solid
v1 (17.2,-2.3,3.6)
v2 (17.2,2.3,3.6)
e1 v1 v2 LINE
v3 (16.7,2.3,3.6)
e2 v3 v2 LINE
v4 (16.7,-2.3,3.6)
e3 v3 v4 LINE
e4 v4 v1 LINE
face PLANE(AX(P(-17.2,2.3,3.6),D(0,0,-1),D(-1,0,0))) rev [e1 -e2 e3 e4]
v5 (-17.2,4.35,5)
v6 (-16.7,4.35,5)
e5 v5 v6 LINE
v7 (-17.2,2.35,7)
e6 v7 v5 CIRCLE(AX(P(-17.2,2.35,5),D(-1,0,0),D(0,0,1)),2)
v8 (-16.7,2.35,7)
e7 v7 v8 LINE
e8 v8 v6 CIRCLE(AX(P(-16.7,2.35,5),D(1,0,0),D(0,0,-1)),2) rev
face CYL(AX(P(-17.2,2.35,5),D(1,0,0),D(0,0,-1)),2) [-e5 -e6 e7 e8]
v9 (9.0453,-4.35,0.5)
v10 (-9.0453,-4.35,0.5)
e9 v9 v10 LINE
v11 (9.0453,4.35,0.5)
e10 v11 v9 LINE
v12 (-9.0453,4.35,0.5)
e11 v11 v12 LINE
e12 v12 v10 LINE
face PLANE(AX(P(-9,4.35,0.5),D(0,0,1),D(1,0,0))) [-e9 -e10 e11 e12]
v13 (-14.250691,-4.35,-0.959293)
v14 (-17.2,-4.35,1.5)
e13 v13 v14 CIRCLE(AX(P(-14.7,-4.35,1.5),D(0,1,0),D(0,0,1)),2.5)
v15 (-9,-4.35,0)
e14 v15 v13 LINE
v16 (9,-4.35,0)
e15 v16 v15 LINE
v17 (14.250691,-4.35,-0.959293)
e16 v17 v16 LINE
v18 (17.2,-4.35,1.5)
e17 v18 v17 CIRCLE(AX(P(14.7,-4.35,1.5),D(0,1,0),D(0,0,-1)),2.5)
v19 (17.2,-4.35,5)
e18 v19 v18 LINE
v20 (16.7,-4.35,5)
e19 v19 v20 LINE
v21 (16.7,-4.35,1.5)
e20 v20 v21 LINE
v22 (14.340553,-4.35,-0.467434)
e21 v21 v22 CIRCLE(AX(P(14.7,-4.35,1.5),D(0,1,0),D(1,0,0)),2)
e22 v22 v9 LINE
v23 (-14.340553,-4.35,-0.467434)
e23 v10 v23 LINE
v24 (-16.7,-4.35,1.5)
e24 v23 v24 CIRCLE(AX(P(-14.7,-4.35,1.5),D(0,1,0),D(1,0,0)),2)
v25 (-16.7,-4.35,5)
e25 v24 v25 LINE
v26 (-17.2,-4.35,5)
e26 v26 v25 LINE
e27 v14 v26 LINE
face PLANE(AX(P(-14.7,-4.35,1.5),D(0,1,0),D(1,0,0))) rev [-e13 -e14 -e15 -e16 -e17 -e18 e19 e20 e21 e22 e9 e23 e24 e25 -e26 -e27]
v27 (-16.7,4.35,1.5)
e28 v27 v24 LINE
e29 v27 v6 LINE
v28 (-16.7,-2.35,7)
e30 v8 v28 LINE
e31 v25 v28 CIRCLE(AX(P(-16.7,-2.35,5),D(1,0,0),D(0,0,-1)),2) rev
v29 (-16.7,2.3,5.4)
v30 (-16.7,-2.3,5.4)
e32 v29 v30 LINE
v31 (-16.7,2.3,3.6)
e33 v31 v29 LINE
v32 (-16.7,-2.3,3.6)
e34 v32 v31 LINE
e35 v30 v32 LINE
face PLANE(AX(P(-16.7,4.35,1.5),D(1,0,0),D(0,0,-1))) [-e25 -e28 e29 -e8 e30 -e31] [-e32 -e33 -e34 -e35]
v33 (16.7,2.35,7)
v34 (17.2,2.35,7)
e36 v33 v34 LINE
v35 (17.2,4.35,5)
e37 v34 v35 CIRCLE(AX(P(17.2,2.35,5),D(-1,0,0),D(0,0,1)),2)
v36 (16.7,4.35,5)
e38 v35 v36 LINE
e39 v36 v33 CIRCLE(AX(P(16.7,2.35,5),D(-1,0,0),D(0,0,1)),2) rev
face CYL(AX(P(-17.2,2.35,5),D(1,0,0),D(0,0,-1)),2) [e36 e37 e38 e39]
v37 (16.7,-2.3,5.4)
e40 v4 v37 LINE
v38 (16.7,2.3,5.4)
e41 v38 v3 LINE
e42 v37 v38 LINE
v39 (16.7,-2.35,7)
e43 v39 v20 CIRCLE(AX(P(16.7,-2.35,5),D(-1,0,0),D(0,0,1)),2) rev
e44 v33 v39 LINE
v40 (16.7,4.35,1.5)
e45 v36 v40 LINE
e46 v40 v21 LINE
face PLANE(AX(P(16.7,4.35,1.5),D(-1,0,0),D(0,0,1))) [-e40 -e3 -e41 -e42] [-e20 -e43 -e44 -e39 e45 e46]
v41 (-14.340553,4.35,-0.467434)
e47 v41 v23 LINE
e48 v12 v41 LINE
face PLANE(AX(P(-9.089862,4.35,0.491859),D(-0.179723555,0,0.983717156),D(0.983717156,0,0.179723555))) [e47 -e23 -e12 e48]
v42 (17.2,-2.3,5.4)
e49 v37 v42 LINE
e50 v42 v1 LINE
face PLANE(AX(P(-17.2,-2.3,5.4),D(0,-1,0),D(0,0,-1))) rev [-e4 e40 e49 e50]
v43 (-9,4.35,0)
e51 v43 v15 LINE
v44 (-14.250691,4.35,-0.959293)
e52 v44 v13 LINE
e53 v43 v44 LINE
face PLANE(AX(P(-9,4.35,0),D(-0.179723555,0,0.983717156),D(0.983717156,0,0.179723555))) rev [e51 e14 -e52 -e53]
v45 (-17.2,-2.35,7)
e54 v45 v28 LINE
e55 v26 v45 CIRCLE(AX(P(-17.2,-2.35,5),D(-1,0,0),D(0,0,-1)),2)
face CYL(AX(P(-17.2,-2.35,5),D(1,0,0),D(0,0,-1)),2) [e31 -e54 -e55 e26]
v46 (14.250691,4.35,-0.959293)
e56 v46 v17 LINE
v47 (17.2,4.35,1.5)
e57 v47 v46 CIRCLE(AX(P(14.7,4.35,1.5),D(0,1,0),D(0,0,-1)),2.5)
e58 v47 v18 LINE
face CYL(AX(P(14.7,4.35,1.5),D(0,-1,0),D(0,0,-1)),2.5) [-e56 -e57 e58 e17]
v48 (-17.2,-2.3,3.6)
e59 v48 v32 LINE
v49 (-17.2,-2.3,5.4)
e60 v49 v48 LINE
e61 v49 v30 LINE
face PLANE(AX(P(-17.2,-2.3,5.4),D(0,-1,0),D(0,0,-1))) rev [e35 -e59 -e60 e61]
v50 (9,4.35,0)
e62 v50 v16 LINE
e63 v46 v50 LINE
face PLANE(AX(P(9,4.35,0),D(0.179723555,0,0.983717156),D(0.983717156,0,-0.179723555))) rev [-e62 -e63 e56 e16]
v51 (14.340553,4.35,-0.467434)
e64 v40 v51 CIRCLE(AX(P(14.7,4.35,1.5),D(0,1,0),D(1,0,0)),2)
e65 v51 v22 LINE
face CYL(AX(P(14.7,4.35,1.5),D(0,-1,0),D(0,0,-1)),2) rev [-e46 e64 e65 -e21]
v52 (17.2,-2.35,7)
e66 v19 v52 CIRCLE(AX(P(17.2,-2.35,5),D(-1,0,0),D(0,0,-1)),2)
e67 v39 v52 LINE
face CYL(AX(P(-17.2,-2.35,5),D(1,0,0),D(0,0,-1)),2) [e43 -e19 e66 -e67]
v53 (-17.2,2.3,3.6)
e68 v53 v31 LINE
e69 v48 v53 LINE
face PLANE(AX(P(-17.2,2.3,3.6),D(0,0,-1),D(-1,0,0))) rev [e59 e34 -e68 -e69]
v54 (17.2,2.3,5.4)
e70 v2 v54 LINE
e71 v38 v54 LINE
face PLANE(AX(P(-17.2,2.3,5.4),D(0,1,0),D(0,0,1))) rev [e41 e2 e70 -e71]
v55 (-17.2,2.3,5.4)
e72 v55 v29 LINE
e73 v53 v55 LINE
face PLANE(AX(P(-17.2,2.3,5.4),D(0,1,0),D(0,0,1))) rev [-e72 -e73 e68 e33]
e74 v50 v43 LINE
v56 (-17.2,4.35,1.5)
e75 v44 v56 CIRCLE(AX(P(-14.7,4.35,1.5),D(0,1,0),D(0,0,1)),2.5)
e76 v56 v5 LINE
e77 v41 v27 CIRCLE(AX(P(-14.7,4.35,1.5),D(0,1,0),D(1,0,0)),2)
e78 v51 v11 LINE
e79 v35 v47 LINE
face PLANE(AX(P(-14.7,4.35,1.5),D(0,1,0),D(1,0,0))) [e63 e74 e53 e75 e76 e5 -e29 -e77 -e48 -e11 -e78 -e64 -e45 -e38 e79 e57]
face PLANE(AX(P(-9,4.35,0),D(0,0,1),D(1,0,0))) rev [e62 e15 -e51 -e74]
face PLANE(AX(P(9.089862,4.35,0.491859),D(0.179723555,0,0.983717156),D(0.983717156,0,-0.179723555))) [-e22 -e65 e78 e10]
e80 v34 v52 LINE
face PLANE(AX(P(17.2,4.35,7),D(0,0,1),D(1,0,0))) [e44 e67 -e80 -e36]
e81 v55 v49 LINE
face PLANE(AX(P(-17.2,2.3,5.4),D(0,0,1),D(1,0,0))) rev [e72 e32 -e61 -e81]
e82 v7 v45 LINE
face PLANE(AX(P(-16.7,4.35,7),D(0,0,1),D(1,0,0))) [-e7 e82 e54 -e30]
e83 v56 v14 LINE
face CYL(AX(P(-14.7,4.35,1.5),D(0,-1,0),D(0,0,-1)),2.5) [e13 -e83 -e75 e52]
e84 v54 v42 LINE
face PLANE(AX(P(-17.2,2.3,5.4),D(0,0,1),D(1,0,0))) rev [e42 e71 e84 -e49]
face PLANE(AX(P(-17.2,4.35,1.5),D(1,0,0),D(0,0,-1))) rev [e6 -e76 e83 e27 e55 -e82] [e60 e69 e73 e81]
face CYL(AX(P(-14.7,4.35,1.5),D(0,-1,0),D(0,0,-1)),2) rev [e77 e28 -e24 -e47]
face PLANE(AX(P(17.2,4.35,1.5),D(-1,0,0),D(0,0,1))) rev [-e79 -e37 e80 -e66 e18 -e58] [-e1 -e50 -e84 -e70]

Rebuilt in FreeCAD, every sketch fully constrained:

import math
import FreeCAD as App
import Part
import Sketcher

V = App.Vector
Q = App.Units.Quantity


def add_polygon(sketch, points):
    """Adds a closed chain of lines whose ends are joined by coincident constraints."""
    first, n = sketch.GeometryCount, len(points)
    for a, b in zip(points, points[1:] + points[:1]):
        sketch.addGeometry(Part.LineSegment(App.Vector(*a, 0), App.Vector(*b, 0)), False)
    for i in range(n):
        sketch.addConstraint(Sketcher.Constraint("Coincident", first + i, 2, first + (i + 1) % n, 1))

doc = App.newDocument("Part")
body = doc.addObject("PartDesign::Body", "Body")

# Sketch on XZ plane
sketch1 = doc.addObject("Sketcher::SketchObject", "Sketch")
body.addObject(sketch1)
sketch1.AttachmentSupport = (doc.XZ_Plane, [""])
sketch1.MapMode = "FlatFace"
sketch1.addGeometry([
    Part.LineSegment(V(-17.2, 1.5, 0), V(-17.2, 7, 0)),  # 0
    Part.LineSegment(V(-17.2, 7, 0), V(-16.7, 7, 0)),  # 1
    Part.LineSegment(V(-16.7, 7, 0), V(-16.7, 1.5, 0)),  # 2
    Part.ArcOfCircle(Part.Circle(V(-14.7, 1.5, 0), V(0, 0, 1), 2), math.radians(180), math.radians(280)),  # 3
    Part.LineSegment(V(-14.3, -0.5, 0), V(-9, 0.5, 0)),  # 4
    Part.LineSegment(V(-9, 0.5, 0), V(9, 0.5, 0)),  # 5
    Part.LineSegment(V(9, 0.5, 0), V(14.3, -0.5, 0)),  # 6
    Part.ArcOfCircle(Part.Circle(V(14.7, 1.5, 0), V(0, 0, 1), 2), math.radians(-100), math.radians(0)),  # 7
    Part.LineSegment(V(16.7, 1.5, 0), V(16.7, 7, 0)),  # 8
    Part.LineSegment(V(16.7, 7, 0), V(17.2, 7, 0)),  # 9
    Part.LineSegment(V(17.2, 7, 0), V(17.2, 1.5, 0)),  # 10
    Part.ArcOfCircle(Part.Circle(V(14.7, 1.5, 0), V(0, 0, 1), 2.5), math.radians(-100), math.radians(0)),  # 11
    Part.LineSegment(V(14.3, -1, 0), V(9, 0, 0)),  # 12
    Part.LineSegment(V(9, 0, 0), V(-9, 0, 0)),  # 13
    Part.LineSegment(V(-9, 0, 0), V(-14.3, -1, 0)),  # 14
    Part.ArcOfCircle(Part.Circle(V(-14.7, 1.5, 0), V(0, 0, 1), 2.5), math.radians(-180), math.radians(-80)),  # 15
], False)
sketch1.addConstraint([
    Sketcher.Constraint("Coincident", 0, 2, 1, 1),
    Sketcher.Constraint("Coincident", 1, 2, 2, 1),
    Sketcher.Constraint("Tangent", 2, 2, 3, 1),
    Sketcher.Constraint("Tangent", 3, 2, 4, 1),
    Sketcher.Constraint("Coincident", 4, 2, 5, 1),
    Sketcher.Constraint("Coincident", 5, 2, 6, 1),
    Sketcher.Constraint("Tangent", 6, 2, 7, 1),
    Sketcher.Constraint("Tangent", 7, 2, 8, 1),
    Sketcher.Constraint("Coincident", 8, 2, 9, 1),
    Sketcher.Constraint("Coincident", 9, 2, 10, 1),
    Sketcher.Constraint("Tangent", 10, 2, 11, 2),
    Sketcher.Constraint("Tangent", 11, 1, 12, 1),
    Sketcher.Constraint("Coincident", 12, 2, 13, 1),
    Sketcher.Constraint("Coincident", 13, 2, 14, 1),
    Sketcher.Constraint("Tangent", 14, 2, 15, 2),
    Sketcher.Constraint("Tangent", 15, 1, 0, 1),
    Sketcher.Constraint("Vertical", 0),
    Sketcher.Constraint("Horizontal", 1),
    Sketcher.Constraint("Vertical", 2),
    Sketcher.Constraint("Horizontal", 5),
    Sketcher.Constraint("Vertical", 8),
    Sketcher.Constraint("Horizontal", 9),
    Sketcher.Constraint("Vertical", 10),
    Sketcher.Constraint("Horizontal", 13),
    Sketcher.Constraint("Coincident", 11, 3, 7, 3),
    Sketcher.Constraint("Coincident", 15, 3, 3, 3),
    Sketcher.Constraint("Equal", 3, 7),
    Sketcher.Constraint("Equal", 11, 15),
    Sketcher.Constraint("Symmetric", 12, 2, 13, 2, -1, 1),
    Sketcher.Constraint("Symmetric", 3, 3, 7, 3, -2),
    Sketcher.Constraint("Parallel", 6, 12),
    Sketcher.Constraint("Parallel", 4, 14),
    Sketcher.Constraint("Horizontal", 1, 2, 8, 2),
    Sketcher.Constraint("Radius", 3, Q("2 mm")),
    Sketcher.Constraint("Radius", 11, Q("2.5 mm")),
    Sketcher.Constraint("DistanceX", 13, 2, 13, 1, Q("18 mm")),
    Sketcher.Constraint("DistanceY", 0, 1, 0, 2, Q("5.5 mm")),
    Sketcher.Constraint("DistanceY", -1, 1, 0, 2, Q("7 mm")),
    Sketcher.Constraint("DistanceY", 4, 2, 3, 3, Q("1 mm")),
    Sketcher.Constraint("DistanceX", 3, 3, -1, 1, Q("14.7 mm")),
])
pad1 = doc.addObject("PartDesign::Pad", "Pad")
body.addObject(pad1)
pad1.Profile = sketch1
pad1.Length = 8.7
pad1.Midplane = True

# Sketch on YZ plane
sketch2 = doc.addObject("Sketcher::SketchObject", "Sketch001")
body.addObject(sketch2)
sketch2.AttachmentSupport = (doc.YZ_Plane, [""])
sketch2.MapMode = "FlatFace"
sketch2.AttachmentOffset = App.Placement(V(0, 0, 17.2), App.Rotation())
add_polygon(sketch2, [(2.3, 5.4), (-2.3, 5.4), (-2.3, 3.6), (2.3, 3.6)])  # lines 0-3
sketch2.addGeometry(Part.LineSegment(V(-2.4, 7, 0), V(2.4, 7, 0)), False)  # 4
sketch2.addGeometry(Part.ArcOfCircle(Part.Circle(V(2.3, 5, 0), V(0, 0, 1), 2), math.radians(0), math.radians(90)), False)  # 5
sketch2.addGeometry(Part.LineSegment(V(4.3, 5, 0), V(8, 5, 0)), False)  # 6
sketch2.addGeometry(Part.LineSegment(V(8, 5, 0), V(8, 10, 0)), False)  # 7
sketch2.addGeometry(Part.LineSegment(V(8, 10, 0), V(-8, 10, 0)), False)  # 8
sketch2.addGeometry(Part.LineSegment(V(-8, 10, 0), V(-8, 5, 0)), False)  # 9
sketch2.addGeometry(Part.LineSegment(V(-8, 5, 0), V(-4.3, 5, 0)), False)  # 10
sketch2.addGeometry(Part.ArcOfCircle(Part.Circle(V(-2.3, 5, 0), V(0, 0, 1), 2), math.radians(90), math.radians(180)), False)  # 11
sketch2.addConstraint([
    Sketcher.Constraint("Tangent", 4, 2, 5, 2),
    Sketcher.Constraint("Coincident", 5, 1, 6, 1),
    Sketcher.Constraint("Coincident", 6, 2, 7, 1),
    Sketcher.Constraint("Coincident", 7, 2, 8, 1),
    Sketcher.Constraint("Coincident", 8, 2, 9, 1),
    Sketcher.Constraint("Coincident", 9, 2, 10, 1),
    Sketcher.Constraint("Coincident", 10, 2, 11, 2),
    Sketcher.Constraint("Tangent", 11, 1, 4, 1),
    Sketcher.Constraint("Horizontal", 0),
    Sketcher.Constraint("Vertical", 1),
    Sketcher.Constraint("Horizontal", 2),
    Sketcher.Constraint("Vertical", 3),
    Sketcher.Constraint("Horizontal", 4),
    Sketcher.Constraint("Horizontal", 6),
    Sketcher.Constraint("Vertical", 7),
    Sketcher.Constraint("Horizontal", 8),
    Sketcher.Constraint("Vertical", 9),
    Sketcher.Constraint("Horizontal", 10),
    Sketcher.Constraint("Equal", 5, 11),
    Sketcher.Constraint("Symmetric", 6, 2, 9, 2, -2),
    Sketcher.Constraint("Horizontal", 11, 3, 5, 1),
    Sketcher.Constraint("Equal", 6, 10),
    Sketcher.Constraint("Radius", 5, Q("2 mm")),
    Sketcher.Constraint("DistanceX", 8, 2, 8, 1, Q("16 mm")),
    Sketcher.Constraint("DistanceY", 7, 1, 7, 2, Q("5 mm")),
    Sketcher.Constraint("DistanceX", 0, 2, 0, 1, Q("4.6 mm")),
    Sketcher.Constraint("DistanceX", 4, 1, 4, 2, Q("4.7 mm")),
    Sketcher.Constraint("DistanceY", 1, 2, 1, 1, Q("1.8 mm")),
    Sketcher.Constraint("DistanceY", -1, 1, 5, 3, Q("5 mm")),
    Sketcher.Constraint("DistanceX", 0, 2, -1, 1, Q("2.3 mm")),
    Sketcher.Constraint("DistanceY", -1, 1, 0, 2, Q("5.4 mm")),
])
pocket1 = doc.addObject("PartDesign::Pocket", "Pocket")
body.addObject(pocket1)
pocket1.Profile = sketch2
pocket1.Type = "ThroughAll"

doc.recompute()
